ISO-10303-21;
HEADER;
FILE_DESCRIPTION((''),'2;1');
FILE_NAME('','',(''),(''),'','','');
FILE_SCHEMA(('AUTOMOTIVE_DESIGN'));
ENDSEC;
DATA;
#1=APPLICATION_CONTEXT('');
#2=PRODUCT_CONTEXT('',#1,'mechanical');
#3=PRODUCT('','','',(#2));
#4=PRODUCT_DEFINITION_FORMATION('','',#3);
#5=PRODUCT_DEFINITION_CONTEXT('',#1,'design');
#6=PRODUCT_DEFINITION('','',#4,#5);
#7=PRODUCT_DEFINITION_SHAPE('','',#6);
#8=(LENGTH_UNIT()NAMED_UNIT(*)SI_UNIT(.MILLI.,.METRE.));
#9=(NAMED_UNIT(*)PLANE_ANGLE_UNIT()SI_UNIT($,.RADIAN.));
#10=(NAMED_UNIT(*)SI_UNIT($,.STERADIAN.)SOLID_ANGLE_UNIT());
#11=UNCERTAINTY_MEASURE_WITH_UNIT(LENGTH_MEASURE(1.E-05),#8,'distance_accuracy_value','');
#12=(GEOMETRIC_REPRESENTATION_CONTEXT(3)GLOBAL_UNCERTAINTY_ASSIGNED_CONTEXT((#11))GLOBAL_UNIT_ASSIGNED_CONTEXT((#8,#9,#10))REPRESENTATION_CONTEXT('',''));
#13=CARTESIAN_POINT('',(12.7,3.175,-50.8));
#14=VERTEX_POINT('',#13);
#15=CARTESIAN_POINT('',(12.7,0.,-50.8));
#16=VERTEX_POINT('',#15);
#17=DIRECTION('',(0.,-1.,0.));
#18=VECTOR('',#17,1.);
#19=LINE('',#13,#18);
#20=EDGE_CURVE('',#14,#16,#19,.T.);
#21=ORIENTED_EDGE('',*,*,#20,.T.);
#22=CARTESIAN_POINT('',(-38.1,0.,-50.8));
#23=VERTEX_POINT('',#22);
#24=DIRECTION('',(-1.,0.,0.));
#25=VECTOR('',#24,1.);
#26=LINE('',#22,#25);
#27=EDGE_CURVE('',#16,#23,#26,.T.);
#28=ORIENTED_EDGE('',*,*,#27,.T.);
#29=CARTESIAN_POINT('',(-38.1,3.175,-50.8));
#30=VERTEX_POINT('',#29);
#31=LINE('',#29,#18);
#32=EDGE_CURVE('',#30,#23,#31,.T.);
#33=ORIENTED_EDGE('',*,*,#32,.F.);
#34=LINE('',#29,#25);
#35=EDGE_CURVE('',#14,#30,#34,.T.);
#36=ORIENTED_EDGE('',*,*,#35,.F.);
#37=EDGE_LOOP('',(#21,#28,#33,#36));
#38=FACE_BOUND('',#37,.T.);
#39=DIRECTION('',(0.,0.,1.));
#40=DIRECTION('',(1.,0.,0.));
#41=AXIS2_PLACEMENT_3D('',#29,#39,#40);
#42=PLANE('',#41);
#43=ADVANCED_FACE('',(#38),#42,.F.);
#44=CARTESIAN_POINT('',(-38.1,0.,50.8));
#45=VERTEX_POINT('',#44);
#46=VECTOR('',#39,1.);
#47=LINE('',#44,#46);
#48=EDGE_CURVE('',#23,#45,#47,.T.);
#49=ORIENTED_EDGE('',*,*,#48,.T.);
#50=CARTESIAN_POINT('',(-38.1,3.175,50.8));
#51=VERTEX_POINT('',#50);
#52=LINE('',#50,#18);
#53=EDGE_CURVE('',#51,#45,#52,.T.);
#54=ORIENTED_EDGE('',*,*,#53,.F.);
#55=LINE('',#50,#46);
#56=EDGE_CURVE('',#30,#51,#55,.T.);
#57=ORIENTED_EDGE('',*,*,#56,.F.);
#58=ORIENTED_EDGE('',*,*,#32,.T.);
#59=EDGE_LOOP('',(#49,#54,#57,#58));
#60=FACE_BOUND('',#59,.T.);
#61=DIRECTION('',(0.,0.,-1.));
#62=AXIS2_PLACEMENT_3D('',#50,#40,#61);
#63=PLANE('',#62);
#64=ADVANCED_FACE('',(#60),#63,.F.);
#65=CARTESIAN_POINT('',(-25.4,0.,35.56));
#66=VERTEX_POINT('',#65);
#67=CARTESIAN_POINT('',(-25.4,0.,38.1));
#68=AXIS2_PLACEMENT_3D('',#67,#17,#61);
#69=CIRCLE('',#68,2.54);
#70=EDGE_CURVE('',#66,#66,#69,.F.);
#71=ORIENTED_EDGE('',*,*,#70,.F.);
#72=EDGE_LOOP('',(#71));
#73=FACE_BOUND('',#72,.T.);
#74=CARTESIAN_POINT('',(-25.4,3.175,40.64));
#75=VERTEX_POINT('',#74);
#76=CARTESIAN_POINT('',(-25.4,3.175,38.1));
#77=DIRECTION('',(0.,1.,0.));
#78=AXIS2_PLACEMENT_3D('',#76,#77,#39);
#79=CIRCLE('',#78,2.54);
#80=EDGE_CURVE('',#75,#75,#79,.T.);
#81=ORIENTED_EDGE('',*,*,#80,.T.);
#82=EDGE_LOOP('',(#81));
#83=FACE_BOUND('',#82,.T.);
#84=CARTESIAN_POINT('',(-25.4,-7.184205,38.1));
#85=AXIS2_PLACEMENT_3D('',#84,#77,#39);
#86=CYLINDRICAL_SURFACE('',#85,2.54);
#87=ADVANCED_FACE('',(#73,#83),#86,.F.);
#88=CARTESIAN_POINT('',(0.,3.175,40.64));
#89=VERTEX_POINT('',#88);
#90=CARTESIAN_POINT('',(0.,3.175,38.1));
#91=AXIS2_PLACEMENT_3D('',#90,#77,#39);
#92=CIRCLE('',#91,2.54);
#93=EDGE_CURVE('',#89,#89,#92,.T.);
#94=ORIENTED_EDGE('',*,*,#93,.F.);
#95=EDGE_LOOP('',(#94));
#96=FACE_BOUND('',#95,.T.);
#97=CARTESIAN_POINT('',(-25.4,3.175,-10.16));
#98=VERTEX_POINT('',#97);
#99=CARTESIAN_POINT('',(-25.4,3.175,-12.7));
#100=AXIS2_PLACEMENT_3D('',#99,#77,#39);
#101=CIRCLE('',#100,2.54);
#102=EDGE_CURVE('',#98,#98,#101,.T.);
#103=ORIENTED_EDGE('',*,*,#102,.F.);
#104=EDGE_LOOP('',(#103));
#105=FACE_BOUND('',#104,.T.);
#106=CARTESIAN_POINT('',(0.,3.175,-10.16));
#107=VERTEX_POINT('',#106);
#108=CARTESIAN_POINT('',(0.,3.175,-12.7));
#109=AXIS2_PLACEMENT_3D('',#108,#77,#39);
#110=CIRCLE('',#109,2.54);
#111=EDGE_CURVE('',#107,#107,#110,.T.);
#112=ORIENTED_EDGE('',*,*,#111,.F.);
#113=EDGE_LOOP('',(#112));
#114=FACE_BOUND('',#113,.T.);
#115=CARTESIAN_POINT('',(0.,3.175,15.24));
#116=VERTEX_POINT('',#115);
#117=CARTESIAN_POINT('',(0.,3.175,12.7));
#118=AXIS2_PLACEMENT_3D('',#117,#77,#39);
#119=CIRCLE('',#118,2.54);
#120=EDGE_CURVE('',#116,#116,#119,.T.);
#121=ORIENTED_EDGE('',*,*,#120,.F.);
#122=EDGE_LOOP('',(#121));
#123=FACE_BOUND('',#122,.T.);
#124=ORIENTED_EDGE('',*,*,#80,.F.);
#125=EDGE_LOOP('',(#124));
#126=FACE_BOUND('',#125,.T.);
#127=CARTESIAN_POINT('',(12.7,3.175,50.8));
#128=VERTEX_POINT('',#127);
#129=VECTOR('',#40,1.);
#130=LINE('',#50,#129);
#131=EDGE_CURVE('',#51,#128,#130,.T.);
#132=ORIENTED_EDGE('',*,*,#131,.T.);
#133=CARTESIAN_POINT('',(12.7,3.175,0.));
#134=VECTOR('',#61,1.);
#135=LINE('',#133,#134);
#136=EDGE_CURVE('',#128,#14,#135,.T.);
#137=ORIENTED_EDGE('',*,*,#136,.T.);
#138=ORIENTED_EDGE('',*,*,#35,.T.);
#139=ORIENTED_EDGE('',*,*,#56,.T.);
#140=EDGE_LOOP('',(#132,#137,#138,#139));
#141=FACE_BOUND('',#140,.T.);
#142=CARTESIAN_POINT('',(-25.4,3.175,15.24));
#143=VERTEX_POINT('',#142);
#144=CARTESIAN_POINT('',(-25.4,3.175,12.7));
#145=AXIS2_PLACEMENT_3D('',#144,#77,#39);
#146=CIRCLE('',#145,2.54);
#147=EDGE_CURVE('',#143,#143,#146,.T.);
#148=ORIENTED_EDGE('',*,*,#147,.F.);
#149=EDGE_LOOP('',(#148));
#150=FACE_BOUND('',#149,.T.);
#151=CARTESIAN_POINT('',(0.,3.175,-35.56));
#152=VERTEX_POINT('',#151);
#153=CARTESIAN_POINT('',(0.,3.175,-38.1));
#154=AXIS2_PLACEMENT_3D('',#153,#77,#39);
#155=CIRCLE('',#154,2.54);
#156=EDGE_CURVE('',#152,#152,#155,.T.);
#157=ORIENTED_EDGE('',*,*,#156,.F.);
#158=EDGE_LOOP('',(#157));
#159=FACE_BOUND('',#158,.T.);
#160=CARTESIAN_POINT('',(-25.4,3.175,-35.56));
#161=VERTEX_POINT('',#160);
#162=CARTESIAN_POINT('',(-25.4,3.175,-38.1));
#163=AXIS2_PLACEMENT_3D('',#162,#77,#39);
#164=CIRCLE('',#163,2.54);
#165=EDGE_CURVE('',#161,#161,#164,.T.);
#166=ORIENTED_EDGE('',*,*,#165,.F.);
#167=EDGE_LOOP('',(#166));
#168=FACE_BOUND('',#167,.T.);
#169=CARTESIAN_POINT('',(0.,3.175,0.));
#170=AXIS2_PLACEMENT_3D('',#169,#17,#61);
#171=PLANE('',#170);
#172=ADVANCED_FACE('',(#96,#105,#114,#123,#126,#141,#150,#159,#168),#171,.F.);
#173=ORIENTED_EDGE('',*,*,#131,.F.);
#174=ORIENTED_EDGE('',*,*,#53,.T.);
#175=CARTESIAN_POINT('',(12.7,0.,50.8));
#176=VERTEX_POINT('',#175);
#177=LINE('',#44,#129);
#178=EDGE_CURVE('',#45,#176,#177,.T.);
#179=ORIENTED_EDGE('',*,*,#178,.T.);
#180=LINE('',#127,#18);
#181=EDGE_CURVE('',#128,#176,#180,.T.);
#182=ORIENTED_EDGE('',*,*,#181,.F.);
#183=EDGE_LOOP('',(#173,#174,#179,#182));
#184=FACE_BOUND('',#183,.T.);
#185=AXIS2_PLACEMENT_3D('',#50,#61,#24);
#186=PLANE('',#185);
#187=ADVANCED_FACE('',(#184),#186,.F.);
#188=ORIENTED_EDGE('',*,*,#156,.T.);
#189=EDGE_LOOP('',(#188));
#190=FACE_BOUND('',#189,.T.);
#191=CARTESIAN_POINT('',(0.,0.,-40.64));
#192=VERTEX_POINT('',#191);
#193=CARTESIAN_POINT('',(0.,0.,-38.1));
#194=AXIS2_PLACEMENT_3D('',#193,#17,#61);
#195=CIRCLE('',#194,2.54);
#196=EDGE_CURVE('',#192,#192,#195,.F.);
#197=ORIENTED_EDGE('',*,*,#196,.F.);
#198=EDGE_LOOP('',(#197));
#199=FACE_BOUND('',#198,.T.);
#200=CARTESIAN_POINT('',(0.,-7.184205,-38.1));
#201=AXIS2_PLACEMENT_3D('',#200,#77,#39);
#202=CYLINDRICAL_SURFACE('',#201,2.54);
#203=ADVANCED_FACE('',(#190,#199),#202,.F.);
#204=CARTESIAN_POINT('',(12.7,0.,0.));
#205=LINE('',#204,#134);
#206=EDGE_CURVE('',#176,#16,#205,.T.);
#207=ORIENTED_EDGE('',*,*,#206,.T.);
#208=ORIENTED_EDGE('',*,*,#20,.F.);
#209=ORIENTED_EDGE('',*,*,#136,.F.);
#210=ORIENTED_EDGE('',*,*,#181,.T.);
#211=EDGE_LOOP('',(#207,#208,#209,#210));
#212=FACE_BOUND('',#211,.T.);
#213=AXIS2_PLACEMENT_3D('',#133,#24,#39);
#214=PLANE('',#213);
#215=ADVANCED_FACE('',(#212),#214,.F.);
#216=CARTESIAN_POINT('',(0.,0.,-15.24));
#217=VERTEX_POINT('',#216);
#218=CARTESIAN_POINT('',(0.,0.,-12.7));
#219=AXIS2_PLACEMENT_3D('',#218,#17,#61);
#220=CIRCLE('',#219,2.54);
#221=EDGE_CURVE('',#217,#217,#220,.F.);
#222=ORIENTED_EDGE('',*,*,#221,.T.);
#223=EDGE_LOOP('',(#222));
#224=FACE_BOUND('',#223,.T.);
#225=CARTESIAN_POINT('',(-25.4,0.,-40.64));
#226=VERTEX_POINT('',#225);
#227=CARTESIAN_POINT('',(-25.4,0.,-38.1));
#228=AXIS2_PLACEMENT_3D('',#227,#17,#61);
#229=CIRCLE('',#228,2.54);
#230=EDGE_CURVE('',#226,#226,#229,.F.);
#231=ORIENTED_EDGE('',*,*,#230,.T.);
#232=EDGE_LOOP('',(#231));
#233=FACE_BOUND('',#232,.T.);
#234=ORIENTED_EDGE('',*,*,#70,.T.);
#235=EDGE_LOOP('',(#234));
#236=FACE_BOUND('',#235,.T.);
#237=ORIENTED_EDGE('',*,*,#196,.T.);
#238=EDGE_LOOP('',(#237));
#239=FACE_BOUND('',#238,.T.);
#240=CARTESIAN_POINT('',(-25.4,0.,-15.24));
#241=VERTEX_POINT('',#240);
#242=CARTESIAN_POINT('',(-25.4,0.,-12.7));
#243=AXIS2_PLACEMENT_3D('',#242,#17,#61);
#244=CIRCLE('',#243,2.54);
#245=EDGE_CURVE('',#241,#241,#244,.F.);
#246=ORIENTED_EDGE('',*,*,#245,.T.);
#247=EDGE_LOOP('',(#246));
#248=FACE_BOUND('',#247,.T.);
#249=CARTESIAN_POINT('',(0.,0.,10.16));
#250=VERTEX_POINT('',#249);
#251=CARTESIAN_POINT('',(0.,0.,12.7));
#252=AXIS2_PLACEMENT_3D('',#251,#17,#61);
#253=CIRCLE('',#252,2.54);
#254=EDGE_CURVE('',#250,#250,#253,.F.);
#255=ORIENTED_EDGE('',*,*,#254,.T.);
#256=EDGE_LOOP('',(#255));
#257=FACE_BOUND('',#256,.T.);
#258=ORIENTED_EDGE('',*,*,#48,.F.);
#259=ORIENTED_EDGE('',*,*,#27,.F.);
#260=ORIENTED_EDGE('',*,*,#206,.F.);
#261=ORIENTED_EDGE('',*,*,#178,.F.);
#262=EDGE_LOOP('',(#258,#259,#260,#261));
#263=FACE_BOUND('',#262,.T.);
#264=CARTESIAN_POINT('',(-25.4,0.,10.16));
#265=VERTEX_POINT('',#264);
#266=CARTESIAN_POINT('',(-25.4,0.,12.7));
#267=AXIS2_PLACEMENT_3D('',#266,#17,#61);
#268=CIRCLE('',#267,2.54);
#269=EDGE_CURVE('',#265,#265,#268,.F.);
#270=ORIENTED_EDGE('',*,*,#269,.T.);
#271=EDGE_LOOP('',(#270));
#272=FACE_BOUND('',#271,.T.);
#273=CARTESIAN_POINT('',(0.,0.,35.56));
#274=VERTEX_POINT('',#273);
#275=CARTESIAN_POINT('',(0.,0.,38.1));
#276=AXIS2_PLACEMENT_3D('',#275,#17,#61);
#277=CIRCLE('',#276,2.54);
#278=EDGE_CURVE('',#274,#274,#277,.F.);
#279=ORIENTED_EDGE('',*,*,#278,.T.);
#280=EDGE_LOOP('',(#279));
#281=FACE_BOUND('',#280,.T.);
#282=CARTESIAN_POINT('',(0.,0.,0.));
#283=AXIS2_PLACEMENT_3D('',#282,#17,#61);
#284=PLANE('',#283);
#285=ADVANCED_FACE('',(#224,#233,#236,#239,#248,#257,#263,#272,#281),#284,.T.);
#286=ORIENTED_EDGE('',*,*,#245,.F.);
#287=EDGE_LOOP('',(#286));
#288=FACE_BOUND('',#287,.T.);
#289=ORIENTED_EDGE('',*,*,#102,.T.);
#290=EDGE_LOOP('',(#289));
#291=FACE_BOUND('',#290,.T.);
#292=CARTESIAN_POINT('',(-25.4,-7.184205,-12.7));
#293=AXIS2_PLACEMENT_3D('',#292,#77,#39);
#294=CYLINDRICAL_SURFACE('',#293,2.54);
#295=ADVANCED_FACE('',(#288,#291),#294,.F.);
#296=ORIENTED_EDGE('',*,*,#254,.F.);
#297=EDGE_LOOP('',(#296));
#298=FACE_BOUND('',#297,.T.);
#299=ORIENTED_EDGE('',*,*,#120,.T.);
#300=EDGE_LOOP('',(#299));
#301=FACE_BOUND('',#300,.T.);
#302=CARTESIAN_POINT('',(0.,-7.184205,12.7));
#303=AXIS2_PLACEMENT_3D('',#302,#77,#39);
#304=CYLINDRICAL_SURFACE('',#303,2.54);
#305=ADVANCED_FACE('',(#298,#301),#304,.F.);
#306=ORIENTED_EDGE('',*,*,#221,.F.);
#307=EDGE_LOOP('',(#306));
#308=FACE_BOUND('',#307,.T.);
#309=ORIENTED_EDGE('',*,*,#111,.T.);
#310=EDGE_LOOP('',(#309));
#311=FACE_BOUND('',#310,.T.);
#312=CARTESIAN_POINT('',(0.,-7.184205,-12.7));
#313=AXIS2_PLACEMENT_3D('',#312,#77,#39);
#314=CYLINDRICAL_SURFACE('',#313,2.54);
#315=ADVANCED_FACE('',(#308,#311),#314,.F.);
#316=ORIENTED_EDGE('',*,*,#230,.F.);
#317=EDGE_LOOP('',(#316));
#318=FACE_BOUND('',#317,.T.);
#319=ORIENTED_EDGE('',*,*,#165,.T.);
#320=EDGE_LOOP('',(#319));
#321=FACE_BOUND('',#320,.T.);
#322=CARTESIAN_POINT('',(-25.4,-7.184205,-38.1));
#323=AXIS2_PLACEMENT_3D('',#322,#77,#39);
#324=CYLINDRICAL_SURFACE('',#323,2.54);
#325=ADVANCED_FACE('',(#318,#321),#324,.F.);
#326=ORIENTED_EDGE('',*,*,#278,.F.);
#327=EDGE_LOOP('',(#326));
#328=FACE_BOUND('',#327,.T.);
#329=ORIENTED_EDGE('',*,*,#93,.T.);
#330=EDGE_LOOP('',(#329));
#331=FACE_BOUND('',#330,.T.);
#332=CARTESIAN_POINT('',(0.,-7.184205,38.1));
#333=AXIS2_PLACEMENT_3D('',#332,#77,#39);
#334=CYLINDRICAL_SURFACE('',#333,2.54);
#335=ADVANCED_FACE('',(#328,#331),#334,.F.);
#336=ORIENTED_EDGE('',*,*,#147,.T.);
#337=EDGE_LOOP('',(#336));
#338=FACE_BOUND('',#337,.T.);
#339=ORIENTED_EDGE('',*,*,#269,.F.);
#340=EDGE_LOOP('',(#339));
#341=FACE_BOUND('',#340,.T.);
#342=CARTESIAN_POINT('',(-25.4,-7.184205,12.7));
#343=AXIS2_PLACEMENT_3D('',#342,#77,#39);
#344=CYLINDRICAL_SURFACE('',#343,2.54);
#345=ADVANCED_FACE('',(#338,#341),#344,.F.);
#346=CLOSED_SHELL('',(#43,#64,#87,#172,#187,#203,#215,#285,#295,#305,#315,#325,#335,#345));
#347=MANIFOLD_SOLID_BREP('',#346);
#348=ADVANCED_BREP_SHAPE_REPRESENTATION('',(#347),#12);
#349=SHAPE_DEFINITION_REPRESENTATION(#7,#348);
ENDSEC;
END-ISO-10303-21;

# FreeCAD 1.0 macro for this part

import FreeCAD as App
import Part
import Sketcher
from FreeCAD import Vector
Q = App.Units.Quantity


def add_polygon(sketch, points):
    """Adds a closed chain of lines whose ends are joined by coincident constraints."""
    first, n = sketch.GeometryCount, len(points)
    for a, b in zip(points, points[1:] + points[:1]):
        sketch.addGeometry(Part.LineSegment(App.Vector(*a, 0), App.Vector(*b, 0)), False)
    for i in range(n):
        sketch.addConstraint(Sketcher.Constraint("Coincident", first + i, 2, first + (i + 1) % n, 1))

doc = App.newDocument("Part")
body = doc.addObject("PartDesign::Body", "Body")

sketch1 = doc.addObject("Sketcher::SketchObject", "Sketch")
body.addObject(sketch1)
sketch1.AttachmentSupport = (doc.XZ_Plane, [""])
sketch1.MapMode = "FlatFace"
add_polygon(sketch1, [(-38.1, 50.8), (12.7, 50.8), (12.7, -50.8), (-38.1, -50.8)])
sketch1.addConstraint([
    Sketcher.Constraint("Horizontal", 0),
    Sketcher.Constraint("Vertical", 1),
    Sketcher.Constraint("Horizontal", 2),
    Sketcher.Constraint("Vertical", 3),
    Sketcher.Constraint("DistanceX", 0, 1, 0, 2, Q("2 in")),
    Sketcher.Constraint("DistanceY", 1, 2, 1, 1, Q("4 in")),
    Sketcher.Constraint("DistanceY", -1, 1, 0, 2, Q("2 in")),
    Sketcher.Constraint("DistanceX", -1, 1, 0, 2, Q("0.5 in")),
])
pad1 = doc.addObject("PartDesign::Pad", "Pad")
body.addObject(pad1)
pad1.Profile = sketch1
pad1.Length = Q("0.125 in")
pad1.Reversed = True

sketch2 = doc.addObject("Sketcher::SketchObject", "Sketch001")
body.addObject(sketch2)
sketch2.AttachmentSupport = (doc.XZ_Plane, [""])
sketch2.MapMode = "FlatFace"
sketch2.AttachmentOffset = App.Placement(Vector(0, 0, -0.125 * 25.4), App.Rotation())
sketch2.addGeometry([
    Part.Circle(Vector(-25.4, -38.1, 0), Vector(0, 0, 1), 2.54),
    Part.Circle(Vector(-25.4, -12.7, 0), Vector(0, 0, 1), 2.54),
    Part.Circle(Vector(-25.4, 12.7, 0), Vector(0, 0, 1), 2.54),
    Part.Circle(Vector(-25.4, 38.1, 0), Vector(0, 0, 1), 2.54),
    Part.Circle(Vector(0, -12.7, 0), Vector(0, 0, 1), 2.54),
    Part.Circle(Vector(0, 12.7, 0), Vector(0, 0, 1), 2.54),
    Part.Circle(Vector(0, 38.1, 0), Vector(0, 0, 1), 2.54),
    Part.Circle(Vector(0, -38.1, 0), Vector(0, 0, 1), 2.54),
], False)
sketch2.addConstraint([
    Sketcher.Constraint("Equal", 0, 1),
    Sketcher.Constraint("Equal", 1, 2),
    Sketcher.Constraint("Equal", 2, 3),
    Sketcher.Constraint("Equal", 3, 4),
    Sketcher.Constraint("Equal", 4, 5),
    Sketcher.Constraint("Equal", 5, 6),
    Sketcher.Constraint("Equal", 6, 7),
    Sketcher.Constraint("Symmetric", 4, 3, 5, 3, -1, 1),
    Sketcher.Constraint("Symmetric", 6, 3, 7, 3, -1, 1),
    Sketcher.Constraint("Symmetric", 1, 3, 2, 3, -1),
    Sketcher.Constraint("Symmetric", 0, 3, 3, 3, -1),
    Sketcher.Constraint("PointOnObject", 4, 3, -2),
    Sketcher.Constraint("PointOnObject", 6, 3, -2),
    Sketcher.Constraint("Horizontal", 1, 3, 4, 3),
    Sketcher.Constraint("Horizontal", 3, 3, 6, 3),
    Sketcher.Constraint("Vertical", 0, 3, 1, 3),
    Sketcher.Constraint("Diameter", 0, Q("0.2 in")),
    Sketcher.Constraint("DistanceX", 0, 3, -1, 1, Q("1 in")),
    Sketcher.Constraint("DistanceY", 0, 3, 1, 3, Q("1 in")),
    Sketcher.Constraint("DistanceY", 1, 3, 2, 3, Q("1 in")),
])
pocket1 = doc.addObject("PartDesign::Pocket", "Pocket")
body.addObject(pocket1)
pocket1.Profile = sketch2
pocket1.Length = Q("0.125 in")
pocket1.Reversed = True

doc.recompute()
